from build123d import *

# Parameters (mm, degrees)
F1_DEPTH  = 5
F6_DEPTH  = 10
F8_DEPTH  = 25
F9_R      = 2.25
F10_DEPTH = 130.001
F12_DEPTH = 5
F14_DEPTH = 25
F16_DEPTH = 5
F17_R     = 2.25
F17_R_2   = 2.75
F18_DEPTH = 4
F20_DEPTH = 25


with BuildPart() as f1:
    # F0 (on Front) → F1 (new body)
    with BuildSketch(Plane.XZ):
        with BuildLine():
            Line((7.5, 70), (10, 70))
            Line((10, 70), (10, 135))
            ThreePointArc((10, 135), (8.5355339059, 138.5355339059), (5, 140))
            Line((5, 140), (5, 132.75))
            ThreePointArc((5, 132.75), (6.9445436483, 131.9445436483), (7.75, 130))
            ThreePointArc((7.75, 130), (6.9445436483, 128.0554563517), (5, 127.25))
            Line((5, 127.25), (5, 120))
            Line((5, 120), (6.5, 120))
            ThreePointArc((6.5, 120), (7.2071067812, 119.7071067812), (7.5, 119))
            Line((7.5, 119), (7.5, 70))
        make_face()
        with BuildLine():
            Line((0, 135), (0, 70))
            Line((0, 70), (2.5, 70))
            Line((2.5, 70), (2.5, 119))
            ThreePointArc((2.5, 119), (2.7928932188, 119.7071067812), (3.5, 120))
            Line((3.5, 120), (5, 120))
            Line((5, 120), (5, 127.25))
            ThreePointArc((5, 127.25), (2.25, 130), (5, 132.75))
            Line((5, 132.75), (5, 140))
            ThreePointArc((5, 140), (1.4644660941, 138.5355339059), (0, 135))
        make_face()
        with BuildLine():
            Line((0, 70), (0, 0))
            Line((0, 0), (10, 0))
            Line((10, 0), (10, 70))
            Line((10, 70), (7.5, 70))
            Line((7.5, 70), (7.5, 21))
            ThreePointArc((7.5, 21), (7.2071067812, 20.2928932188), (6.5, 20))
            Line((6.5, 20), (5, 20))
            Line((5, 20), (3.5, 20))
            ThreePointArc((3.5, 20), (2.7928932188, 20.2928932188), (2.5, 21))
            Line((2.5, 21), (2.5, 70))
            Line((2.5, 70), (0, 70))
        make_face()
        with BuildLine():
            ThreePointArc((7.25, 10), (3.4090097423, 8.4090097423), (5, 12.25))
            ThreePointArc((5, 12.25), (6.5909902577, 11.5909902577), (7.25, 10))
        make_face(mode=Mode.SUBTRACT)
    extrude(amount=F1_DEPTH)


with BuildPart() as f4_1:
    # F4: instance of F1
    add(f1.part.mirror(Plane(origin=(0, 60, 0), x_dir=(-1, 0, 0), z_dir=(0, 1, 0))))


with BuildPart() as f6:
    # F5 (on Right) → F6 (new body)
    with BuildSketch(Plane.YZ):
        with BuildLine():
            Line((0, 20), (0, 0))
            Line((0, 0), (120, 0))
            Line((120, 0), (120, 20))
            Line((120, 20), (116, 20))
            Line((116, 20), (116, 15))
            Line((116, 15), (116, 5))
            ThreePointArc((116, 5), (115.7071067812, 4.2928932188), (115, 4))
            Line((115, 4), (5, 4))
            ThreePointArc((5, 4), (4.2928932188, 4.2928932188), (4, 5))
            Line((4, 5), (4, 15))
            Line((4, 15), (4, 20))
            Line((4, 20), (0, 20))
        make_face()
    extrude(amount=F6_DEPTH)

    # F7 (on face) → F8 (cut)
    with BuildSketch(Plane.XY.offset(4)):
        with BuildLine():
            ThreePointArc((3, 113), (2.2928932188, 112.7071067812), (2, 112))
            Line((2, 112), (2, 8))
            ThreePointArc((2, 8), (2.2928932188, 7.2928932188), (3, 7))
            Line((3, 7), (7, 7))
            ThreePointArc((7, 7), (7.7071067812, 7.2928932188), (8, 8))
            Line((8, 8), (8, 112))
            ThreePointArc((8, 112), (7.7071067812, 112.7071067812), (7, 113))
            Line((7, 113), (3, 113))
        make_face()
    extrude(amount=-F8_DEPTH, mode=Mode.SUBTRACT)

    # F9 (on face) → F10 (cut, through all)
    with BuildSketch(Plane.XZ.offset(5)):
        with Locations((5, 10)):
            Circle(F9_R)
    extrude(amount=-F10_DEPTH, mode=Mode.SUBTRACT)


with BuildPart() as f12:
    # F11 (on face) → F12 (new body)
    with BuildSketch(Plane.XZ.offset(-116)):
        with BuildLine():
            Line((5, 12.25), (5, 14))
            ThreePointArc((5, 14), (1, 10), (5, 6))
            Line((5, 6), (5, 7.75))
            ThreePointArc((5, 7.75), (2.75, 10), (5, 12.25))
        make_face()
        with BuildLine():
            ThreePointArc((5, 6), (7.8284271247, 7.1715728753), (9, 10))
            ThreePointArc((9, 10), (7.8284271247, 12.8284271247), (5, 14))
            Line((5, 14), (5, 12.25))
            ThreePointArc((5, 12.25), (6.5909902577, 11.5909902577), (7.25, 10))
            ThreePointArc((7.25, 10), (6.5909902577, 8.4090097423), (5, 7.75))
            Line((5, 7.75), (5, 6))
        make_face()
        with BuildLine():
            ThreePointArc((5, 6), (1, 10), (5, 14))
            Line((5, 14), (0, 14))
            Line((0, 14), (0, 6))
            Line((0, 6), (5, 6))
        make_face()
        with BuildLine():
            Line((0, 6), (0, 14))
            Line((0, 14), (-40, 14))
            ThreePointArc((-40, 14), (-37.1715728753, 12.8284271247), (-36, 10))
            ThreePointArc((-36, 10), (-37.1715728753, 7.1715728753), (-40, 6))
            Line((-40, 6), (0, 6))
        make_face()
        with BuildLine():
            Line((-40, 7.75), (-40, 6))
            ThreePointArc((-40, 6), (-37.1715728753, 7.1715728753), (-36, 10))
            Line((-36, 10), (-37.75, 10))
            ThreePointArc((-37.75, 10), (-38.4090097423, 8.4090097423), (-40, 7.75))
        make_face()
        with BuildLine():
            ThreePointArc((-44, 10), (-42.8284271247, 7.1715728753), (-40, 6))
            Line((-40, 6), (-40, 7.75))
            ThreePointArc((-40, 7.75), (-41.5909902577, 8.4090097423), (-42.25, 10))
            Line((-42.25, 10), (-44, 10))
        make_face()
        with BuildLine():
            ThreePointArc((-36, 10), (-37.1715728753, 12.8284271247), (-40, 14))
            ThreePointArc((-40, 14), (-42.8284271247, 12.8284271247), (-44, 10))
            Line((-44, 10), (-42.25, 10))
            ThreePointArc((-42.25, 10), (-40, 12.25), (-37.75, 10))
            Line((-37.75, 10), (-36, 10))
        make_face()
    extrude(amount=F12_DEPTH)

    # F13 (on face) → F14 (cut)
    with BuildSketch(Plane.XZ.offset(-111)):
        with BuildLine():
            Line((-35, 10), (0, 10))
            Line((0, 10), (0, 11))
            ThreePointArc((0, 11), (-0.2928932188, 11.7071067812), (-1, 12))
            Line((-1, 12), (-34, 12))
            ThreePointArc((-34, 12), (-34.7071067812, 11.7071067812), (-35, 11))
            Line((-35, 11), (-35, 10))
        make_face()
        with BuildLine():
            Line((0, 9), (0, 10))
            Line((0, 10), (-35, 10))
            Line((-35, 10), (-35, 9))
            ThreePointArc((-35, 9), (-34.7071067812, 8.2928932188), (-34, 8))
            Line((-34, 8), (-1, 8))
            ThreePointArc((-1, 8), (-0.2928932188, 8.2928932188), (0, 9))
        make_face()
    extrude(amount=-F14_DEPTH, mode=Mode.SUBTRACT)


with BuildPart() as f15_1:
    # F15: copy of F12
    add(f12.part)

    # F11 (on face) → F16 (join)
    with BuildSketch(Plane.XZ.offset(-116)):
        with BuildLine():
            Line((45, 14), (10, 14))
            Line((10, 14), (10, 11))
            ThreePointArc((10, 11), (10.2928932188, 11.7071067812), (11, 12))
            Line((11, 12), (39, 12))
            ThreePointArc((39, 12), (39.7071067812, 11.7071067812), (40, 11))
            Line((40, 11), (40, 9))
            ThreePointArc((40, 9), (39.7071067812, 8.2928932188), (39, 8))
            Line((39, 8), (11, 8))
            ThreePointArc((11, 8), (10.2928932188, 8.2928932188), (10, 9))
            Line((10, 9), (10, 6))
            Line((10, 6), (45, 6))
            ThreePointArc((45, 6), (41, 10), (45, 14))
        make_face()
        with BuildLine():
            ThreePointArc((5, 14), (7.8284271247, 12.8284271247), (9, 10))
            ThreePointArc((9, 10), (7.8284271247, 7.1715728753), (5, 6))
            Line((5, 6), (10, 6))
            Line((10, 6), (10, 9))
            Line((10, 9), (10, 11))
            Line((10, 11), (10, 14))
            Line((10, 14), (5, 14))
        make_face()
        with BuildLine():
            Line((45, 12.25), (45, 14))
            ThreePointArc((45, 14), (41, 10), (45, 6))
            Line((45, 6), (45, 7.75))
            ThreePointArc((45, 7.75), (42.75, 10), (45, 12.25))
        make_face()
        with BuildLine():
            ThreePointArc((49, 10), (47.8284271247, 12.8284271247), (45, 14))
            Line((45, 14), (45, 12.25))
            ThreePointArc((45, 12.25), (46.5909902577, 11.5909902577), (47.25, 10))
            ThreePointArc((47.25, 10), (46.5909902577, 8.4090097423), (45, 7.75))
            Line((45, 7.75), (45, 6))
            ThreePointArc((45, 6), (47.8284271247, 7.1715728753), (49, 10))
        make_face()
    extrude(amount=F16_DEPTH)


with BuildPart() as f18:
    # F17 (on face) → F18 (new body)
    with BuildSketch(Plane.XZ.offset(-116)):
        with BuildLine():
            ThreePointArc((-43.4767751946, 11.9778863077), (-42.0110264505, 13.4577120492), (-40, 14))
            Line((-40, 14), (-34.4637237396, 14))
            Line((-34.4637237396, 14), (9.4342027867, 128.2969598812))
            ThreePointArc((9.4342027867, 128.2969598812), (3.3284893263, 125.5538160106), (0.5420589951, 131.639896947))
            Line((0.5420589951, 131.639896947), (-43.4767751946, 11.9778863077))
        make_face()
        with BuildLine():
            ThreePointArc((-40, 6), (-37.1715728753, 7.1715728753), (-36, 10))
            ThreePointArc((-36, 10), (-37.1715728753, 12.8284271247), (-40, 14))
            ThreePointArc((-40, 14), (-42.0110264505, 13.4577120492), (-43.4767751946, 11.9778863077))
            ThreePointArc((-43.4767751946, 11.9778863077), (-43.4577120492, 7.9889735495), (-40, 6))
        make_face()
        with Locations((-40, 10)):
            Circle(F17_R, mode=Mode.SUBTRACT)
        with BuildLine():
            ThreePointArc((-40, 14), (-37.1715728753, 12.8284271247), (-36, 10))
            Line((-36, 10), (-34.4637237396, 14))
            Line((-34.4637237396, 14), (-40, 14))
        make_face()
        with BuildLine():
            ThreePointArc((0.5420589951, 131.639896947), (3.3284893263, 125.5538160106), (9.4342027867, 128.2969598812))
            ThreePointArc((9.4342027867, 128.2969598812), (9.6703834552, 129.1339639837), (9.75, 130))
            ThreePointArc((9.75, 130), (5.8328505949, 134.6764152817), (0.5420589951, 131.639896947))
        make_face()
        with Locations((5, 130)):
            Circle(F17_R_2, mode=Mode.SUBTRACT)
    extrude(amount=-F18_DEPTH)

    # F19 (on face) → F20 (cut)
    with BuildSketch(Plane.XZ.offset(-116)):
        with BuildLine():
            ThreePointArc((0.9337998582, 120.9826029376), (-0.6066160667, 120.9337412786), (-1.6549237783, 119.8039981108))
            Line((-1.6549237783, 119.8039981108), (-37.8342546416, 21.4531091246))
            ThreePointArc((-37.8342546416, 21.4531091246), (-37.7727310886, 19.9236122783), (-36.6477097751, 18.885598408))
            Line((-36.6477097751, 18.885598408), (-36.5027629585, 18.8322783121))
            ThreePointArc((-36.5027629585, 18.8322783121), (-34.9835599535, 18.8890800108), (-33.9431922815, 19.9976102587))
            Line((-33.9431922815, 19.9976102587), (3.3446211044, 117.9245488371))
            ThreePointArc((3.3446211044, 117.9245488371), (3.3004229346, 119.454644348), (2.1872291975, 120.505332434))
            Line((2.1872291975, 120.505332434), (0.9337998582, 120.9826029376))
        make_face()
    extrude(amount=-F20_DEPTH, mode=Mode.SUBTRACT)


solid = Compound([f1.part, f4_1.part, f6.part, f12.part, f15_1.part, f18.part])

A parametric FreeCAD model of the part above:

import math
import FreeCAD as App
import Part
import Sketcher

V = App.Vector

doc = App.newDocument("Part")
body = doc.addObject("PartDesign::Body", "Body")

# Sketch on XZ plane
sketch1 = body.newObject("Sketcher::SketchObject", "Sketch")
sketch1.AttachmentSupport = (doc.getObject("XZ_Plane"), [""])
sketch1.MapMode = "FlatFace"
sketch1.addGeometry([
    Part.ArcOfCircle(Part.Circle(V(5, 135, 0), V(0, 0, 1), 5), math.radians(0), math.radians(90)),  # 0
    Part.ArcOfCircle(Part.Circle(V(5, 135, 0), V(0, 0, 1), 5), math.radians(90), math.radians(180)),  # 1
    Part.LineSegment(V(0, 135, 0), V(0, 0, 0)),  # 2
    Part.LineSegment(V(0, 0, 0), V(10, 0, 0)),  # 3
    Part.LineSegment(V(10, 0, 0), V(10, 135, 0)),  # 4
    Part.ArcOfCircle(Part.Circle(V(5, 10, 0), V(0, 0, 1), 2.2), math.radians(0), math.radians(90)),  # 5
    Part.ArcOfCircle(Part.Circle(V(5, 10, 0), V(0, 0, 1), 2.2), math.radians(90), math.radians(360)),  # 6
    Part.ArcOfCircle(Part.Circle(V(3.5, 119, 0), V(0, 0, 1), 1), math.radians(90), math.radians(180)),  # 7
    Part.LineSegment(V(3.5, 120, 0), V(6.5, 120, 0)),  # 8
    Part.ArcOfCircle(Part.Circle(V(6.5, 119, 0), V(0, 0, 1), 1), math.radians(0), math.radians(90)),  # 9
    Part.LineSegment(V(7.5, 119, 0), V(7.5, 21, 0)),  # 10
    Part.ArcOfCircle(Part.Circle(V(6.5, 21, 0), V(0, 0, 1), 1), math.radians(-90), math.radians(0)),  # 11
    Part.LineSegment(V(6.5, 20, 0), V(3.5, 20, 0)),  # 12
    Part.ArcOfCircle(Part.Circle(V(3.5, 21, 0), V(0, 0, 1), 1), math.radians(180), math.radians(270)),  # 13
    Part.LineSegment(V(2.5, 21, 0), V(2.5, 119, 0)),  # 14
    Part.ArcOfCircle(Part.Circle(V(5, 130, 0), V(0, 0, 1), 2.8), math.radians(0), math.radians(90)),  # 15
    Part.ArcOfCircle(Part.Circle(V(5, 130, 0), V(0, 0, 1), 2.8), math.radians(-90), math.radians(0)),  # 16
    Part.ArcOfCircle(Part.Circle(V(5, 130, 0), V(0, 0, 1), 2.8), math.radians(90), math.radians(270)),  # 17
], False)
sketch1.addConstraint([
    Sketcher.Constraint("Tangent", 0, 2, 1, 1),
    Sketcher.Constraint("Tangent", 1, 2, 2, 1),
    Sketcher.Constraint("Coincident", 2, 2, 3, 1),
    Sketcher.Constraint("Coincident", 3, 2, 4, 1),
    Sketcher.Constraint("Tangent", 4, 2, 0, 1),
    Sketcher.Constraint("Tangent", 5, 1, 6, 2),
    Sketcher.Constraint("Coincident", 6, 1, 5, 2),
    Sketcher.Constraint("Tangent", 7, 1, 8, 1),
    Sketcher.Constraint("Tangent", 8, 2, 9, 2),
    Sketcher.Constraint("Tangent", 9, 1, 10, 1),
    Sketcher.Constraint("Tangent", 10, 2, 11, 2),
    Sketcher.Constraint("Tangent", 11, 1, 12, 1),
    Sketcher.Constraint("Tangent", 12, 2, 13, 2),
    Sketcher.Constraint("Tangent", 13, 1, 14, 1),
    Sketcher.Constraint("Tangent", 14, 2, 7, 2),
    Sketcher.Constraint("Tangent", 15, 1, 16, 2),
    Sketcher.Constraint("Tangent", 16, 1, 17, 2),
    Sketcher.Constraint("Tangent", 17, 1, 15, 2),
    Sketcher.Constraint("Vertical", 2),
    Sketcher.Constraint("Horizontal", 3),
    Sketcher.Constraint("Vertical", 4),
    Sketcher.Constraint("Horizontal", 8),
    Sketcher.Constraint("Vertical", 10),
    Sketcher.Constraint("Horizontal", 12),
    Sketcher.Constraint("Vertical", 14),
    Sketcher.Constraint("Coincident", 2, 2, -1, 1),
    Sketcher.Constraint("Equal", 0, 1),
    Sketcher.Constraint("Equal", 7, 9),
    Sketcher.Constraint("Equal", 9, 11),
    Sketcher.Constraint("Equal", 11, 13),
    Sketcher.Constraint("Horizontal", 6, 3, 5, 1),
    Sketcher.Constraint("Horizontal", 17, 3, 15, 1),
    Sketcher.Constraint("Vertical", 1, 3, 5, 3),
    Sketcher.Constraint("Vertical", 6, 3, 15, 3),
    Sketcher.Constraint("Vertical", 17, 3, 0, 2),
    Sketcher.Constraint("Vertical", 0, 2, 6, 1),
    Sketcher.Constraint("Vertical", 6, 1, 16, 1),
    Sketcher.Constraint("Vertical", 16, 1, 17, 1),
    Sketcher.Constraint("Radius", 0, 5.0),
    Sketcher.Constraint("Radius", 7, 1.0),
    Sketcher.Constraint("DistanceX", 8, 1, 8, 2, 3.0),
    Sketcher.Constraint("DistanceY", 2, 2, 2, 1, 135.0),
    Sketcher.Constraint("DistanceY", 10, 2, 10, 1, 98.0),
    Sketcher.Constraint("Radius", 5, 2.25),
    Sketcher.Constraint("Radius", 15, 2.75),
    Sketcher.Constraint("DistanceY", -1, 1, 5, 3, 10.0),
    Sketcher.Constraint("DistanceY", -1, 1, 7, 3, 119.0),
    Sketcher.Constraint("DistanceY", -1, 1, 15, 3, 130.0),
    Sketcher.Constraint("DistanceX", -1, 1, 7, 3, 3.5),
])
pad1 = body.newObject("PartDesign::Pad", "Pad")
pad1.Profile = sketch1
pad1.Length = 5
body2 = doc.addObject("PartDesign::Body", "Body001")
doc.recompute()

mirroring = doc.addObject("Part::Mirroring", "Mirroring")
mirroring.Source = body
mirroring.Base = V(0, 60, 0)
mirroring.Normal = V(0, 1, 0)
body2.BaseFeature = mirroring
doc.recompute()
body3 = doc.addObject("PartDesign::Body", "Body002")

# Sketch on YZ plane
sketch2 = body3.newObject("Sketcher::SketchObject", "Sketch001")
sketch2.AttachmentSupport = (doc.getObject("YZ_Plane002"), [""])
sketch2.MapMode = "FlatFace"
sketch2.addGeometry([
    Part.LineSegment(V(0, 20, 0), V(0, 0, 0)),  # 0
    Part.LineSegment(V(0, 0, 0), V(120, 0, 0)),  # 1
    Part.LineSegment(V(120, 0, 0), V(120, 20, 0)),  # 2
    Part.LineSegment(V(120, 20, 0), V(116, 20, 0)),  # 3
    Part.LineSegment(V(116, 20, 0), V(116, 5, 0)),  # 4
    Part.ArcOfCircle(Part.Circle(V(115, 5, 0), V(0, 0, 1), 1), math.radians(-90), math.radians(0)),  # 5
    Part.LineSegment(V(115, 4, 0), V(5, 4, 0)),  # 6
    Part.ArcOfCircle(Part.Circle(V(5, 5, 0), V(0, 0, 1), 1), math.radians(180), math.radians(270)),  # 7
    Part.LineSegment(V(4, 5, 0), V(4, 20, 0)),  # 8
    Part.LineSegment(V(4, 20, 0), V(0, 20, 0)),  # 9
], False)
sketch2.addConstraint([
    Sketcher.Constraint("Coincident", 0, 2, 1, 1),
    Sketcher.Constraint("Coincident", 1, 2, 2, 1),
    Sketcher.Constraint("Coincident", 2, 2, 3, 1),
    Sketcher.Constraint("Coincident", 3, 2, 4, 1),
    Sketcher.Constraint("Tangent", 4, 2, 5, 2),
    Sketcher.Constraint("Tangent", 5, 1, 6, 1),
    Sketcher.Constraint("Tangent", 6, 2, 7, 2),
    Sketcher.Constraint("Tangent", 7, 1, 8, 1),
    Sketcher.Constraint("Coincident", 8, 2, 9, 1),
    Sketcher.Constraint("Coincident", 9, 2, 0, 1),
    Sketcher.Constraint("Vertical", 0),
    Sketcher.Constraint("Horizontal", 1),
    Sketcher.Constraint("Vertical", 2),
    Sketcher.Constraint("Horizontal", 3),
    Sketcher.Constraint("Vertical", 4),
    Sketcher.Constraint("Horizontal", 6),
    Sketcher.Constraint("Vertical", 8),
    Sketcher.Constraint("Horizontal", 9),
    Sketcher.Constraint("Coincident", 0, 2, -1, 1),
    Sketcher.Constraint("Equal", 5, 7),
    Sketcher.Constraint("Horizontal", 3, 2, 8, 2),
    Sketcher.Constraint("Equal", 3, 9),
    Sketcher.Constraint("Radius", 5, 1.0),
    Sketcher.Constraint("DistanceX", 1, 1, 1, 2, 120.0),
    Sketcher.Constraint("DistanceX", 3, 2, 3, 1, 4.0),
    Sketcher.Constraint("DistanceY", 0, 2, 0, 1, 20.0),
    Sketcher.Constraint("DistanceY", 4, 2, 4, 1, 15.0),
])
pad2 = body3.newObject("PartDesign::Pad", "Pad001")
pad2.Profile = sketch2
pad2.Length = 10

# Sketch on XY plane
sketch3 = body3.newObject("Sketcher::SketchObject", "Sketch002")
sketch3.AttachmentSupport = (doc.getObject("XY_Plane002"), [""])
sketch3.MapMode = "FlatFace"
sketch3.AttachmentOffset = App.Placement(V(0, 0, 4), App.Rotation())
sketch3.addGeometry([
    Part.ArcOfCircle(Part.Circle(V(3, 112, 0), V(0, 0, 1), 1), math.radians(90), math.radians(180)),  # 0
    Part.LineSegment(V(2, 112, 0), V(2, 8, 0)),  # 1
    Part.ArcOfCircle(Part.Circle(V(3, 8, 0), V(0, 0, 1), 1), math.radians(180), math.radians(270)),  # 2
    Part.LineSegment(V(3, 7, 0), V(7, 7, 0)),  # 3
    Part.ArcOfCircle(Part.Circle(V(7, 8, 0), V(0, 0, 1), 1), math.radians(-90), math.radians(0)),  # 4
    Part.LineSegment(V(8, 8, 0), V(8, 112, 0)),  # 5
    Part.ArcOfCircle(Part.Circle(V(7, 112, 0), V(0, 0, 1), 1), math.radians(0), math.radians(90)),  # 6
    Part.LineSegment(V(7, 113, 0), V(3, 113, 0)),  # 7
], False)
sketch3.addConstraint([
    Sketcher.Constraint("Tangent", 0, 2, 1, 1),
    Sketcher.Constraint("Tangent", 1, 2, 2, 1),
    Sketcher.Constraint("Tangent", 2, 2, 3, 1),
    Sketcher.Constraint("Tangent", 3, 2, 4, 1),
    Sketcher.Constraint("Tangent", 4, 2, 5, 1),
    Sketcher.Constraint("Tangent", 5, 2, 6, 1),
    Sketcher.Constraint("Tangent", 6, 2, 7, 1),
    Sketcher.Constraint("Tangent", 7, 2, 0, 1),
    Sketcher.Constraint("Vertical", 1),
    Sketcher.Constraint("Horizontal", 3),
    Sketcher.Constraint("Vertical", 5),
    Sketcher.Constraint("Horizontal", 7),
    Sketcher.Constraint("Equal", 0, 2),
    Sketcher.Constraint("Equal", 2, 4),
    Sketcher.Constraint("Equal", 4, 6),
    Sketcher.Constraint("Radius", 0, 1.0),
    Sketcher.Constraint("DistanceX", 3, 1, 3, 2, 4.0),
    Sketcher.Constraint("DistanceY", 1, 2, 1, 1, 104.0),
    Sketcher.Constraint("DistanceX", -1, 1, 0, 3, 3.0),
    Sketcher.Constraint("DistanceY", -1, 1, 0, 3, 112.0),
])
pocket1 = body3.newObject("PartDesign::Pocket", "Pocket")
pocket1.Profile = sketch3
pocket1.Length = 25

# Sketch on XZ plane
sketch4 = body3.newObject("Sketcher::SketchObject", "Sketch003")
sketch4.AttachmentSupport = (doc.getObject("XZ_Plane002"), [""])
sketch4.MapMode = "FlatFace"
sketch4.AttachmentOffset = App.Placement(V(0, 0, 5), App.Rotation())
sketch4.addGeometry(Part.Circle(V(5, 10, 0), V(0, 0, 1), 2.2), False)
sketch4.addConstraint([
    Sketcher.Constraint("Diameter", 0, 4.5),
    Sketcher.Constraint("DistanceX", -1, 1, 0, 3, 5.0),
    Sketcher.Constraint("DistanceY", -1, 1, 0, 3, 10.0),
])
pocket2 = body3.newObject("PartDesign::Pocket", "Pocket001")
pocket2.Profile = sketch4
pocket2.Type = "ThroughAll"
body4 = doc.addObject("PartDesign::Body", "Body003")

# Sketch on XZ plane
sketch5 = body4.newObject("Sketcher::SketchObject", "Sketch004")
sketch5.AttachmentSupport = (doc.getObject("XZ_Plane003"), [""])
sketch5.MapMode = "FlatFace"
sketch5.AttachmentOffset = App.Placement(V(0, 0, -116), App.Rotation())
sketch5.addGeometry([
    Part.ArcOfCircle(Part.Circle(V(5, 10, 0), V(0, 0, 1), 4), math.radians(-90), math.radians(0)),  # 0
    Part.ArcOfCircle(Part.Circle(V(5, 10, 0), V(0, 0, 1), 4), math.radians(0), math.radians(90)),  # 1
    Part.LineSegment(V(5, 14, 0), V(-40, 14, 0)),  # 2
    Part.ArcOfCircle(Part.Circle(V(-40, 10, 0), V(0, 0, 1), 4), math.radians(90), math.radians(180)),  # 3
    Part.ArcOfCircle(Part.Circle(V(-40, 10, 0), V(0, 0, 1), 4), math.radians(180), math.radians(270)),  # 4
    Part.LineSegment(V(-40, 6, 0), V(5, 6, 0)),  # 5
    Part.ArcOfCircle(Part.Circle(V(-40, 10, 0), V(0, 0, 1), 2.2), math.radians(-90), math.radians(0)),  # 6
    Part.ArcOfCircle(Part.Circle(V(-40, 10, 0), V(0, 0, 1), 2.2), math.radians(180), math.radians(270)),  # 7
    Part.ArcOfCircle(Part.Circle(V(-40, 10, 0), V(0, 0, 1), 2.2), math.radians(0), math.radians(180)),  # 8
    Part.ArcOfCircle(Part.Circle(V(5, 10, 0), V(0, 0, 1), 2.2), math.radians(90), math.radians(270)),  # 9
    Part.ArcOfCircle(Part.Circle(V(5, 10, 0), V(0, 0, 1), 2.2), math.radians(0), math.radians(90)),  # 10
    Part.ArcOfCircle(Part.Circle(V(5, 10, 0), V(0, 0, 1), 2.2), math.radians(-90), math.radians(0)),  # 11
], False)
sketch5.addConstraint([
    Sketcher.Constraint("Tangent", 0, 2, 1, 1),
    Sketcher.Constraint("Tangent", 1, 2, 2, 1),
    Sketcher.Constraint("Tangent", 2, 2, 3, 1),
    Sketcher.Constraint("Tangent", 3, 2, 4, 1),
    Sketcher.Constraint("Tangent", 4, 2, 5, 1),
    Sketcher.Constraint("Tangent", 5, 2, 0, 1),
    Sketcher.Constraint("Tangent", 6, 1, 7, 2),
    Sketcher.Constraint("Tangent", 7, 1, 8, 2),
    Sketcher.Constraint("Tangent", 8, 1, 6, 2),
    Sketcher.Constraint("Tangent", 9, 1, 10, 2),
    Sketcher.Constraint("Tangent", 10, 1, 11, 2),
    Sketcher.Constraint("Tangent", 11, 1, 9, 2),
    Sketcher.Constraint("Horizontal", 2),
    Sketcher.Constraint("Horizontal", 5),
    Sketcher.Constraint("Coincident", 6, 3, 3, 3),
    Sketcher.Constraint("Coincident", 9, 3, 0, 3),
    Sketcher.Constraint("Equal", 0, 1),
    Sketcher.Constraint("Equal", 1, 3),
    Sketcher.Constraint("Equal", 8, 9),
    Sketcher.Constraint("Horizontal", 11, 3, 0, 2),
    Sketcher.Constraint("Horizontal", 0, 2, 3, 2),
    Sketcher.Constraint("Horizontal", 3, 2, 7, 1),
    Sketcher.Constraint("Horizontal", 7, 1, 8, 1),
    Sketcher.Constraint("Horizontal", 8, 1, 10, 1),
    Sketcher.Constraint("Vertical", 4, 2, 6, 1),
    Sketcher.Constraint("Vertical", 5, 2, 9, 1),
    Sketcher.Constraint("Vertical", 9, 1, 11, 1),
    Sketcher.Constraint("Radius", 0, 4.0),
    Sketcher.Constraint("DistanceX", 2, 2, 2, 1, 45.0),
    Sketcher.Constraint("Radius", 6, 2.25),
    Sketcher.Constraint("DistanceX", -1, 1, 0, 3, 5.0),
    Sketcher.Constraint("DistanceY", -1, 1, 0, 3, 10.0),
])
pad3 = body4.newObject("PartDesign::Pad", "Pad002")
pad3.Profile = sketch5
pad3.Length = 5

# Sketch on XZ plane
sketch6 = body4.newObject("Sketcher::SketchObject", "Sketch005")
sketch6.AttachmentSupport = (doc.getObject("XZ_Plane003"), [""])
sketch6.MapMode = "FlatFace"
sketch6.AttachmentOffset = App.Placement(V(0, 0, -111), App.Rotation())
sketch6.addGeometry([
    Part.ArcOfCircle(Part.Circle(V(-1, 11, 0), V(0, 0, 1), 1), math.radians(0), math.radians(90)),  # 0
    Part.LineSegment(V(-1, 12, 0), V(-34, 12, 0)),  # 1
    Part.ArcOfCircle(Part.Circle(V(-34, 11, 0), V(0, 0, 1), 1), math.radians(90), math.radians(180)),  # 2
    Part.LineSegment(V(-35, 11, 0), V(-35, 9, 0)),  # 3
    Part.ArcOfCircle(Part.Circle(V(-34, 9, 0), V(0, 0, 1), 1), math.radians(180), math.radians(270)),  # 4
    Part.LineSegment(V(-34, 8, 0), V(-1, 8, 0)),  # 5
    Part.ArcOfCircle(Part.Circle(V(-1, 9, 0), V(0, 0, 1), 1), math.radians(-90), math.radians(0)),  # 6
    Part.LineSegment(V(0, 9, 0), V(0, 11, 0)),  # 7
], False)
sketch6.addConstraint([
    Sketcher.Constraint("Tangent", 0, 2, 1, 1),
    Sketcher.Constraint("Tangent", 1, 2, 2, 1),
    Sketcher.Constraint("Tangent", 2, 2, 3, 1),
    Sketcher.Constraint("Tangent", 3, 2, 4, 1),
    Sketcher.Constraint("Tangent", 4, 2, 5, 1),
    Sketcher.Constraint("Tangent", 5, 2, 6, 1),
    Sketcher.Constraint("Tangent", 6, 2, 7, 1),
    Sketcher.Constraint("Tangent", 7, 2, 0, 1),
    Sketcher.Constraint("Horizontal", 1),
    Sketcher.Constraint("Vertical", 3),
    Sketcher.Constraint("Horizontal", 5),
    Sketcher.Constraint("Vertical", 7),
    Sketcher.Constraint("Equal", 0, 2),
    Sketcher.Constraint("Equal", 2, 4),
    Sketcher.Constraint("Equal", 4, 6),
    Sketcher.Constraint("PointOnObject", 6, 2, -2),
    Sketcher.Constraint("Radius", 0, 1.0),
    Sketcher.Constraint("DistanceX", 1, 2, 1, 1, 33.0),
    Sketcher.Constraint("DistanceY", 3, 2, 3, 1, 2.0),
    Sketcher.Constraint("DistanceY", -1, 1, 0, 3, 11.0),
])
pocket3 = body4.newObject("PartDesign::Pocket", "Pocket002")
pocket3.Profile = sketch6
pocket3.Length = 25
body5 = doc.addObject("PartDesign::Body", "Body004")
doc.recompute()

body5.BaseFeature = body4
doc.recompute()

# Sketch on XZ plane
sketch7 = body5.newObject("Sketcher::SketchObject", "Sketch006")
sketch7.AttachmentSupport = (doc.getObject("XZ_Plane004"), [""])
sketch7.MapMode = "FlatFace"
sketch7.AttachmentOffset = App.Placement(V(0, 0, -116), App.Rotation())
sketch7.addGeometry([
    Part.LineSegment(V(45, 14, 0), V(5, 14, 0)),  # 0
    Part.ArcOfCircle(Part.Circle(V(5, 10, 0), V(0, 0, 1), 4), math.radians(0), math.radians(90)),  # 1
    Part.ArcOfCircle(Part.Circle(V(5, 10, 0), V(0, 0, 1), 4), math.radians(-90), math.radians(0)),  # 2
    Part.LineSegment(V(5, 6, 0), V(45, 6, 0)),  # 3
    Part.ArcOfCircle(Part.Circle(V(45, 10, 0), V(0, 0, 1), 4), math.radians(-90), math.radians(0)),  # 4
    Part.ArcOfCircle(Part.Circle(V(45, 10, 0), V(0, 0, 1), 4), math.radians(0), math.radians(90)),  # 5
    Part.ArcOfCircle(Part.Circle(V(45, 10, 0), V(0, 0, 1), 2.2), math.radians(90), math.radians(270)),  # 6
    Part.ArcOfCircle(Part.Circle(V(45, 10, 0), V(0, 0, 1), 2.2), math.radians(0), math.radians(90)),  # 7
    Part.ArcOfCircle(Part.Circle(V(45, 10, 0), V(0, 0, 1), 2.2), math.radians(-90), math.radians(0)),  # 8
    Part.ArcOfCircle(Part.Circle(V(11, 11, 0), V(0, 0, 1), 1), math.radians(90), math.radians(180)),  # 9
    Part.LineSegment(V(11, 12, 0), V(39, 12, 0)),  # 10
    Part.ArcOfCircle(Part.Circle(V(39, 11, 0), V(0, 0, 1), 1), math.radians(0), math.radians(90)),  # 11
    Part.LineSegment(V(40, 11, 0), V(40, 9, 0)),  # 12
    Part.ArcOfCircle(Part.Circle(V(39, 9, 0), V(0, 0, 1), 1), math.radians(-90), math.radians(0)),  # 13
    Part.LineSegment(V(39, 8, 0), V(11, 8, 0)),  # 14
    Part.ArcOfCircle(Part.Circle(V(11, 9, 0), V(0, 0, 1), 1), math.radians(180), math.radians(270)),  # 15
    Part.LineSegment(V(10, 9, 0), V(10, 11, 0)),  # 16
], False)
sketch7.addConstraint([
    Sketcher.Constraint("Tangent", 0, 2, 1, 2),
    Sketcher.Constraint("Tangent", 1, 1, 2, 2),
    Sketcher.Constraint("Tangent", 2, 1, 3, 1),
    Sketcher.Constraint("Tangent", 3, 2, 4, 1),
    Sketcher.Constraint("Tangent", 4, 2, 5, 1),
    Sketcher.Constraint("Tangent", 5, 2, 0, 1),
    Sketcher.Constraint("Tangent", 6, 1, 7, 2),
    Sketcher.Constraint("Tangent", 7, 1, 8, 2),
    Sketcher.Constraint("Tangent", 8, 1, 6, 2),
    Sketcher.Constraint("Tangent", 9, 1, 10, 1),
    Sketcher.Constraint("Tangent", 10, 2, 11, 2),
    Sketcher.Constraint("Tangent", 11, 1, 12, 1),
    Sketcher.Constraint("Tangent", 12, 2, 13, 2),
    Sketcher.Constraint("Tangent", 13, 1, 14, 1),
    Sketcher.Constraint("Tangent", 14, 2, 15, 2),
    Sketcher.Constraint("Tangent", 15, 1, 16, 1),
    Sketcher.Constraint("Tangent", 16, 2, 9, 2),
    Sketcher.Constraint("Horizontal", 0),
    Sketcher.Constraint("Horizontal", 3),
    Sketcher.Constraint("Horizontal", 10),
    Sketcher.Constraint("Vertical", 12),
    Sketcher.Constraint("Horizontal", 14),
    Sketcher.Constraint("Vertical", 16),
    Sketcher.Constraint("Coincident", 6, 3, 4, 3),
    Sketcher.Constraint("Equal", 1, 2),
    Sketcher.Constraint("Equal", 2, 4),
    Sketcher.Constraint("Equal", 9, 11),
    Sketcher.Constraint("Equal", 11, 13),
    Sketcher.Constraint("Equal", 13, 15),
    Sketcher.Constraint("Horizontal", 8, 3, 1, 1),
    Sketcher.Constraint("Horizontal", 1, 1, 4, 2),
    Sketcher.Constraint("Horizontal", 4, 2, 7, 1),
    Sketcher.Constraint("Vertical", 5, 2, 6, 1),
    Sketcher.Constraint("Vertical", 6, 1, 8, 1),
    Sketcher.Constraint("Radius", 1, 4.0),
    Sketcher.Constraint("Radius", 9, 1.0),
    Sketcher.Constraint("DistanceX", 0, 2, 0, 1, 40.0),
    Sketcher.Constraint("DistanceX", 10, 1, 10, 2, 28.0),
    Sketcher.Constraint("DistanceY", 12, 2, 12, 1, 2.0),
    Sketcher.Constraint("Radius", 6, 2.25),
    Sketcher.Constraint("DistanceX", -1, 1, 1, 3, 5.0),
    Sketcher.Constraint("DistanceY", -1, 1, 1, 3, 10.0),
    Sketcher.Constraint("DistanceX", -1, 1, 9, 3, 11.0),
    Sketcher.Constraint("DistanceY", -1, 1, 9, 3, 11.0),
])
pad4 = body5.newObject("PartDesign::Pad", "Pad003")
pad4.Profile = sketch7
pad4.Length = 5
body6 = doc.addObject("PartDesign::Body", "Body005")

# Sketch on XZ plane
sketch8 = body6.newObject("Sketcher::SketchObject", "Sketch007")
sketch8.AttachmentSupport = (doc.getObject("XZ_Plane005"), [""])
sketch8.MapMode = "FlatFace"
sketch8.AttachmentOffset = App.Placement(V(0, 0, -116), App.Rotation())
sketch8.addGeometry([
    Part.LineSegment(V(-34.5, 14, 0), V(9.4, 128.3, 0)),  # 0
    Part.ArcOfCircle(Part.Circle(V(5, 130, 0), V(0, 0, 1), 4.7), math.radians(-21), math.radians(0)),  # 1
    Part.ArcOfCircle(Part.Circle(V(5, 130, 0), V(0, 0, 1), 4.8), math.radians(0), math.radians(160)),  # 2
    Part.LineSegment(V(0.5, 131.6, 0), V(-43.5, 12, 0)),  # 3
    Part.ArcOfCircle(Part.Circle(V(-40, 10, 0), V(0, 0, 1), 4), math.radians(150), math.radians(270)),  # 4
    Part.ArcOfCircle(Part.Circle(V(-40, 10, 0), V(0, 0, 1), 4), math.radians(-90), math.radians(0)),  # 5
    Part.LineSegment(V(-36, 10, 0), V(-34.5, 14, 0)),  # 6
    Part.Circle(V(-40, 10, 0), V(0, 0, 1), 2.2),  # 7
    Part.Circle(V(5, 130, 0), V(0, 0, 1), 2.8),  # 8
], False)
sketch8.addConstraint([
    Sketcher.Constraint("Tangent", 0, 2, 1, 1),
    Sketcher.Constraint("Tangent", 1, 2, 2, 1),
    Sketcher.Constraint("Tangent", 2, 2, 3, 1),
    Sketcher.Constraint("Coincident", 3, 2, 4, 1),
    Sketcher.Constraint("Tangent", 4, 2, 5, 1),
    Sketcher.Constraint("Coincident", 5, 2, 6, 1),
    Sketcher.Constraint("Coincident", 6, 2, 0, 1),
    Sketcher.Constraint("Coincident", 7, 3, 4, 3),
    Sketcher.Constraint("Coincident", 8, 3, 1, 3),
    Sketcher.Constraint("Equal", 1, 2),
    Sketcher.Constraint("Equal", 4, 5),
    Sketcher.Constraint("Parallel", 0, 6),
    Sketcher.Constraint("Horizontal", 8, 3, 1, 2),
    Sketcher.Constraint("Horizontal", 7, 3, 5, 2),
    Sketcher.Constraint("Vertical", 7, 3, 4, 2),
    Sketcher.Constraint("Radius", 4, 4.0),
    Sketcher.Constraint("Diameter", 7, 4.5),
    Sketcher.Constraint("Diameter", 8, 5.5),
    Sketcher.Constraint("Radius", 1, 4.75),
    Sketcher.Constraint("DistanceX", -1, 1, 1, 3, 5.0),
    Sketcher.Constraint("DistanceY", -1, 1, 1, 3, 130.0),
    Sketcher.Constraint("DistanceX", 4, 3, -1, 1, 40.0),
    Sketcher.Constraint("DistanceY", -1, 1, 4, 3, 10.0),
    Sketcher.Constraint("DistanceY", -1, 1, 6, 2, 14.0),
    Sketcher.Constraint("DistanceY", 3, 2, 2, 2, 119.662011),
])
pad5 = body6.newObject("PartDesign::Pad", "Pad004")
pad5.Profile = sketch8
pad5.Length = 4
pad5.Reversed = True

# Sketch on XZ plane
sketch9 = body6.newObject("Sketcher::SketchObject", "Sketch008")
sketch9.AttachmentSupport = (doc.getObject("XZ_Plane005"), [""])
sketch9.MapMode = "FlatFace"
sketch9.AttachmentOffset = App.Placement(V(0, 0, -116), App.Rotation())
sketch9.addGeometry([
    Part.ArcOfCircle(Part.Circle(V(0.22, 119.11, 0), V(0, 0, 1), 2), math.radians(69), math.radians(160)),  # 0
    Part.LineSegment(V(-1.65, 119.8, 0), V(-37.83, 21.45, 0)),  # 1
    Part.ArcOfCircle(Part.Circle(V(-35.96, 20.76, 0), V(0, 0, 1), 2), math.radians(160), math.radians(250)),  # 2
    Part.LineSegment(V(-36.65, 18.89, 0), V(-36.5, 18.83, 0)),  # 3
    Part.ArcOfCircle(Part.Circle(V(-35.81, 20.71, 0), V(0, 0, 1), 2), math.radians(-110), math.radians(-21)),  # 4
    Part.LineSegment(V(-33.94, 20, 0), V(3.34, 117.92, 0)),  # 5
    Part.ArcOfCircle(Part.Circle(V(1.48, 118.64, 0), V(0, 0, 1), 2), math.radians(-21), math.radians(69)),  # 6
    Part.LineSegment(V(2.19, 120.51, 0), V(0.93, 120.98, 0)),  # 7
], False)
sketch9.addConstraint([
    Sketcher.Constraint("Tangent", 0, 2, 1, 1),
    Sketcher.Constraint("Tangent", 1, 2, 2, 1),
    Sketcher.Constraint("Tangent", 2, 2, 3, 1),
    Sketcher.Constraint("Tangent", 3, 2, 4, 1),
    Sketcher.Constraint("Tangent", 4, 2, 5, 1),
    Sketcher.Constraint("Tangent", 5, 2, 6, 1),
    Sketcher.Constraint("Tangent", 6, 2, 7, 1),
    Sketcher.Constraint("Tangent", 7, 2, 0, 1),
    Sketcher.Constraint("Equal", 0, 2),
    Sketcher.Constraint("Equal", 2, 4),
    Sketcher.Constraint("Equal", 4, 6),
    Sketcher.Constraint("Perpendicular", 1, 3),
    Sketcher.Constraint("Perpendicular", 5, 7),
    Sketcher.Constraint("Radius", 0, 2.0),
    Sketcher.Constraint("DistanceY", -1, 1, 0, 2, 119.803998),
    Sketcher.Constraint("DistanceY", -1, 1, 2, 2, 18.885598),
    Sketcher.Constraint("DistanceX", -1, 1, 7, 2, 0.9338),
    Sketcher.Constraint("DistanceY", 4, 2, 1, 2, 1.455499),
    Sketcher.Constraint("DistanceX", 4, 3, 5, 2, 39.156901),
    Sketcher.Constraint("Distance", 1, 104.794281),
])
pocket4 = body6.newObject("PartDesign::Pocket", "Pocket003")
pocket4.Profile = sketch9
pocket4.Length = 25
mirroring.Visibility = False

doc.recompute()
